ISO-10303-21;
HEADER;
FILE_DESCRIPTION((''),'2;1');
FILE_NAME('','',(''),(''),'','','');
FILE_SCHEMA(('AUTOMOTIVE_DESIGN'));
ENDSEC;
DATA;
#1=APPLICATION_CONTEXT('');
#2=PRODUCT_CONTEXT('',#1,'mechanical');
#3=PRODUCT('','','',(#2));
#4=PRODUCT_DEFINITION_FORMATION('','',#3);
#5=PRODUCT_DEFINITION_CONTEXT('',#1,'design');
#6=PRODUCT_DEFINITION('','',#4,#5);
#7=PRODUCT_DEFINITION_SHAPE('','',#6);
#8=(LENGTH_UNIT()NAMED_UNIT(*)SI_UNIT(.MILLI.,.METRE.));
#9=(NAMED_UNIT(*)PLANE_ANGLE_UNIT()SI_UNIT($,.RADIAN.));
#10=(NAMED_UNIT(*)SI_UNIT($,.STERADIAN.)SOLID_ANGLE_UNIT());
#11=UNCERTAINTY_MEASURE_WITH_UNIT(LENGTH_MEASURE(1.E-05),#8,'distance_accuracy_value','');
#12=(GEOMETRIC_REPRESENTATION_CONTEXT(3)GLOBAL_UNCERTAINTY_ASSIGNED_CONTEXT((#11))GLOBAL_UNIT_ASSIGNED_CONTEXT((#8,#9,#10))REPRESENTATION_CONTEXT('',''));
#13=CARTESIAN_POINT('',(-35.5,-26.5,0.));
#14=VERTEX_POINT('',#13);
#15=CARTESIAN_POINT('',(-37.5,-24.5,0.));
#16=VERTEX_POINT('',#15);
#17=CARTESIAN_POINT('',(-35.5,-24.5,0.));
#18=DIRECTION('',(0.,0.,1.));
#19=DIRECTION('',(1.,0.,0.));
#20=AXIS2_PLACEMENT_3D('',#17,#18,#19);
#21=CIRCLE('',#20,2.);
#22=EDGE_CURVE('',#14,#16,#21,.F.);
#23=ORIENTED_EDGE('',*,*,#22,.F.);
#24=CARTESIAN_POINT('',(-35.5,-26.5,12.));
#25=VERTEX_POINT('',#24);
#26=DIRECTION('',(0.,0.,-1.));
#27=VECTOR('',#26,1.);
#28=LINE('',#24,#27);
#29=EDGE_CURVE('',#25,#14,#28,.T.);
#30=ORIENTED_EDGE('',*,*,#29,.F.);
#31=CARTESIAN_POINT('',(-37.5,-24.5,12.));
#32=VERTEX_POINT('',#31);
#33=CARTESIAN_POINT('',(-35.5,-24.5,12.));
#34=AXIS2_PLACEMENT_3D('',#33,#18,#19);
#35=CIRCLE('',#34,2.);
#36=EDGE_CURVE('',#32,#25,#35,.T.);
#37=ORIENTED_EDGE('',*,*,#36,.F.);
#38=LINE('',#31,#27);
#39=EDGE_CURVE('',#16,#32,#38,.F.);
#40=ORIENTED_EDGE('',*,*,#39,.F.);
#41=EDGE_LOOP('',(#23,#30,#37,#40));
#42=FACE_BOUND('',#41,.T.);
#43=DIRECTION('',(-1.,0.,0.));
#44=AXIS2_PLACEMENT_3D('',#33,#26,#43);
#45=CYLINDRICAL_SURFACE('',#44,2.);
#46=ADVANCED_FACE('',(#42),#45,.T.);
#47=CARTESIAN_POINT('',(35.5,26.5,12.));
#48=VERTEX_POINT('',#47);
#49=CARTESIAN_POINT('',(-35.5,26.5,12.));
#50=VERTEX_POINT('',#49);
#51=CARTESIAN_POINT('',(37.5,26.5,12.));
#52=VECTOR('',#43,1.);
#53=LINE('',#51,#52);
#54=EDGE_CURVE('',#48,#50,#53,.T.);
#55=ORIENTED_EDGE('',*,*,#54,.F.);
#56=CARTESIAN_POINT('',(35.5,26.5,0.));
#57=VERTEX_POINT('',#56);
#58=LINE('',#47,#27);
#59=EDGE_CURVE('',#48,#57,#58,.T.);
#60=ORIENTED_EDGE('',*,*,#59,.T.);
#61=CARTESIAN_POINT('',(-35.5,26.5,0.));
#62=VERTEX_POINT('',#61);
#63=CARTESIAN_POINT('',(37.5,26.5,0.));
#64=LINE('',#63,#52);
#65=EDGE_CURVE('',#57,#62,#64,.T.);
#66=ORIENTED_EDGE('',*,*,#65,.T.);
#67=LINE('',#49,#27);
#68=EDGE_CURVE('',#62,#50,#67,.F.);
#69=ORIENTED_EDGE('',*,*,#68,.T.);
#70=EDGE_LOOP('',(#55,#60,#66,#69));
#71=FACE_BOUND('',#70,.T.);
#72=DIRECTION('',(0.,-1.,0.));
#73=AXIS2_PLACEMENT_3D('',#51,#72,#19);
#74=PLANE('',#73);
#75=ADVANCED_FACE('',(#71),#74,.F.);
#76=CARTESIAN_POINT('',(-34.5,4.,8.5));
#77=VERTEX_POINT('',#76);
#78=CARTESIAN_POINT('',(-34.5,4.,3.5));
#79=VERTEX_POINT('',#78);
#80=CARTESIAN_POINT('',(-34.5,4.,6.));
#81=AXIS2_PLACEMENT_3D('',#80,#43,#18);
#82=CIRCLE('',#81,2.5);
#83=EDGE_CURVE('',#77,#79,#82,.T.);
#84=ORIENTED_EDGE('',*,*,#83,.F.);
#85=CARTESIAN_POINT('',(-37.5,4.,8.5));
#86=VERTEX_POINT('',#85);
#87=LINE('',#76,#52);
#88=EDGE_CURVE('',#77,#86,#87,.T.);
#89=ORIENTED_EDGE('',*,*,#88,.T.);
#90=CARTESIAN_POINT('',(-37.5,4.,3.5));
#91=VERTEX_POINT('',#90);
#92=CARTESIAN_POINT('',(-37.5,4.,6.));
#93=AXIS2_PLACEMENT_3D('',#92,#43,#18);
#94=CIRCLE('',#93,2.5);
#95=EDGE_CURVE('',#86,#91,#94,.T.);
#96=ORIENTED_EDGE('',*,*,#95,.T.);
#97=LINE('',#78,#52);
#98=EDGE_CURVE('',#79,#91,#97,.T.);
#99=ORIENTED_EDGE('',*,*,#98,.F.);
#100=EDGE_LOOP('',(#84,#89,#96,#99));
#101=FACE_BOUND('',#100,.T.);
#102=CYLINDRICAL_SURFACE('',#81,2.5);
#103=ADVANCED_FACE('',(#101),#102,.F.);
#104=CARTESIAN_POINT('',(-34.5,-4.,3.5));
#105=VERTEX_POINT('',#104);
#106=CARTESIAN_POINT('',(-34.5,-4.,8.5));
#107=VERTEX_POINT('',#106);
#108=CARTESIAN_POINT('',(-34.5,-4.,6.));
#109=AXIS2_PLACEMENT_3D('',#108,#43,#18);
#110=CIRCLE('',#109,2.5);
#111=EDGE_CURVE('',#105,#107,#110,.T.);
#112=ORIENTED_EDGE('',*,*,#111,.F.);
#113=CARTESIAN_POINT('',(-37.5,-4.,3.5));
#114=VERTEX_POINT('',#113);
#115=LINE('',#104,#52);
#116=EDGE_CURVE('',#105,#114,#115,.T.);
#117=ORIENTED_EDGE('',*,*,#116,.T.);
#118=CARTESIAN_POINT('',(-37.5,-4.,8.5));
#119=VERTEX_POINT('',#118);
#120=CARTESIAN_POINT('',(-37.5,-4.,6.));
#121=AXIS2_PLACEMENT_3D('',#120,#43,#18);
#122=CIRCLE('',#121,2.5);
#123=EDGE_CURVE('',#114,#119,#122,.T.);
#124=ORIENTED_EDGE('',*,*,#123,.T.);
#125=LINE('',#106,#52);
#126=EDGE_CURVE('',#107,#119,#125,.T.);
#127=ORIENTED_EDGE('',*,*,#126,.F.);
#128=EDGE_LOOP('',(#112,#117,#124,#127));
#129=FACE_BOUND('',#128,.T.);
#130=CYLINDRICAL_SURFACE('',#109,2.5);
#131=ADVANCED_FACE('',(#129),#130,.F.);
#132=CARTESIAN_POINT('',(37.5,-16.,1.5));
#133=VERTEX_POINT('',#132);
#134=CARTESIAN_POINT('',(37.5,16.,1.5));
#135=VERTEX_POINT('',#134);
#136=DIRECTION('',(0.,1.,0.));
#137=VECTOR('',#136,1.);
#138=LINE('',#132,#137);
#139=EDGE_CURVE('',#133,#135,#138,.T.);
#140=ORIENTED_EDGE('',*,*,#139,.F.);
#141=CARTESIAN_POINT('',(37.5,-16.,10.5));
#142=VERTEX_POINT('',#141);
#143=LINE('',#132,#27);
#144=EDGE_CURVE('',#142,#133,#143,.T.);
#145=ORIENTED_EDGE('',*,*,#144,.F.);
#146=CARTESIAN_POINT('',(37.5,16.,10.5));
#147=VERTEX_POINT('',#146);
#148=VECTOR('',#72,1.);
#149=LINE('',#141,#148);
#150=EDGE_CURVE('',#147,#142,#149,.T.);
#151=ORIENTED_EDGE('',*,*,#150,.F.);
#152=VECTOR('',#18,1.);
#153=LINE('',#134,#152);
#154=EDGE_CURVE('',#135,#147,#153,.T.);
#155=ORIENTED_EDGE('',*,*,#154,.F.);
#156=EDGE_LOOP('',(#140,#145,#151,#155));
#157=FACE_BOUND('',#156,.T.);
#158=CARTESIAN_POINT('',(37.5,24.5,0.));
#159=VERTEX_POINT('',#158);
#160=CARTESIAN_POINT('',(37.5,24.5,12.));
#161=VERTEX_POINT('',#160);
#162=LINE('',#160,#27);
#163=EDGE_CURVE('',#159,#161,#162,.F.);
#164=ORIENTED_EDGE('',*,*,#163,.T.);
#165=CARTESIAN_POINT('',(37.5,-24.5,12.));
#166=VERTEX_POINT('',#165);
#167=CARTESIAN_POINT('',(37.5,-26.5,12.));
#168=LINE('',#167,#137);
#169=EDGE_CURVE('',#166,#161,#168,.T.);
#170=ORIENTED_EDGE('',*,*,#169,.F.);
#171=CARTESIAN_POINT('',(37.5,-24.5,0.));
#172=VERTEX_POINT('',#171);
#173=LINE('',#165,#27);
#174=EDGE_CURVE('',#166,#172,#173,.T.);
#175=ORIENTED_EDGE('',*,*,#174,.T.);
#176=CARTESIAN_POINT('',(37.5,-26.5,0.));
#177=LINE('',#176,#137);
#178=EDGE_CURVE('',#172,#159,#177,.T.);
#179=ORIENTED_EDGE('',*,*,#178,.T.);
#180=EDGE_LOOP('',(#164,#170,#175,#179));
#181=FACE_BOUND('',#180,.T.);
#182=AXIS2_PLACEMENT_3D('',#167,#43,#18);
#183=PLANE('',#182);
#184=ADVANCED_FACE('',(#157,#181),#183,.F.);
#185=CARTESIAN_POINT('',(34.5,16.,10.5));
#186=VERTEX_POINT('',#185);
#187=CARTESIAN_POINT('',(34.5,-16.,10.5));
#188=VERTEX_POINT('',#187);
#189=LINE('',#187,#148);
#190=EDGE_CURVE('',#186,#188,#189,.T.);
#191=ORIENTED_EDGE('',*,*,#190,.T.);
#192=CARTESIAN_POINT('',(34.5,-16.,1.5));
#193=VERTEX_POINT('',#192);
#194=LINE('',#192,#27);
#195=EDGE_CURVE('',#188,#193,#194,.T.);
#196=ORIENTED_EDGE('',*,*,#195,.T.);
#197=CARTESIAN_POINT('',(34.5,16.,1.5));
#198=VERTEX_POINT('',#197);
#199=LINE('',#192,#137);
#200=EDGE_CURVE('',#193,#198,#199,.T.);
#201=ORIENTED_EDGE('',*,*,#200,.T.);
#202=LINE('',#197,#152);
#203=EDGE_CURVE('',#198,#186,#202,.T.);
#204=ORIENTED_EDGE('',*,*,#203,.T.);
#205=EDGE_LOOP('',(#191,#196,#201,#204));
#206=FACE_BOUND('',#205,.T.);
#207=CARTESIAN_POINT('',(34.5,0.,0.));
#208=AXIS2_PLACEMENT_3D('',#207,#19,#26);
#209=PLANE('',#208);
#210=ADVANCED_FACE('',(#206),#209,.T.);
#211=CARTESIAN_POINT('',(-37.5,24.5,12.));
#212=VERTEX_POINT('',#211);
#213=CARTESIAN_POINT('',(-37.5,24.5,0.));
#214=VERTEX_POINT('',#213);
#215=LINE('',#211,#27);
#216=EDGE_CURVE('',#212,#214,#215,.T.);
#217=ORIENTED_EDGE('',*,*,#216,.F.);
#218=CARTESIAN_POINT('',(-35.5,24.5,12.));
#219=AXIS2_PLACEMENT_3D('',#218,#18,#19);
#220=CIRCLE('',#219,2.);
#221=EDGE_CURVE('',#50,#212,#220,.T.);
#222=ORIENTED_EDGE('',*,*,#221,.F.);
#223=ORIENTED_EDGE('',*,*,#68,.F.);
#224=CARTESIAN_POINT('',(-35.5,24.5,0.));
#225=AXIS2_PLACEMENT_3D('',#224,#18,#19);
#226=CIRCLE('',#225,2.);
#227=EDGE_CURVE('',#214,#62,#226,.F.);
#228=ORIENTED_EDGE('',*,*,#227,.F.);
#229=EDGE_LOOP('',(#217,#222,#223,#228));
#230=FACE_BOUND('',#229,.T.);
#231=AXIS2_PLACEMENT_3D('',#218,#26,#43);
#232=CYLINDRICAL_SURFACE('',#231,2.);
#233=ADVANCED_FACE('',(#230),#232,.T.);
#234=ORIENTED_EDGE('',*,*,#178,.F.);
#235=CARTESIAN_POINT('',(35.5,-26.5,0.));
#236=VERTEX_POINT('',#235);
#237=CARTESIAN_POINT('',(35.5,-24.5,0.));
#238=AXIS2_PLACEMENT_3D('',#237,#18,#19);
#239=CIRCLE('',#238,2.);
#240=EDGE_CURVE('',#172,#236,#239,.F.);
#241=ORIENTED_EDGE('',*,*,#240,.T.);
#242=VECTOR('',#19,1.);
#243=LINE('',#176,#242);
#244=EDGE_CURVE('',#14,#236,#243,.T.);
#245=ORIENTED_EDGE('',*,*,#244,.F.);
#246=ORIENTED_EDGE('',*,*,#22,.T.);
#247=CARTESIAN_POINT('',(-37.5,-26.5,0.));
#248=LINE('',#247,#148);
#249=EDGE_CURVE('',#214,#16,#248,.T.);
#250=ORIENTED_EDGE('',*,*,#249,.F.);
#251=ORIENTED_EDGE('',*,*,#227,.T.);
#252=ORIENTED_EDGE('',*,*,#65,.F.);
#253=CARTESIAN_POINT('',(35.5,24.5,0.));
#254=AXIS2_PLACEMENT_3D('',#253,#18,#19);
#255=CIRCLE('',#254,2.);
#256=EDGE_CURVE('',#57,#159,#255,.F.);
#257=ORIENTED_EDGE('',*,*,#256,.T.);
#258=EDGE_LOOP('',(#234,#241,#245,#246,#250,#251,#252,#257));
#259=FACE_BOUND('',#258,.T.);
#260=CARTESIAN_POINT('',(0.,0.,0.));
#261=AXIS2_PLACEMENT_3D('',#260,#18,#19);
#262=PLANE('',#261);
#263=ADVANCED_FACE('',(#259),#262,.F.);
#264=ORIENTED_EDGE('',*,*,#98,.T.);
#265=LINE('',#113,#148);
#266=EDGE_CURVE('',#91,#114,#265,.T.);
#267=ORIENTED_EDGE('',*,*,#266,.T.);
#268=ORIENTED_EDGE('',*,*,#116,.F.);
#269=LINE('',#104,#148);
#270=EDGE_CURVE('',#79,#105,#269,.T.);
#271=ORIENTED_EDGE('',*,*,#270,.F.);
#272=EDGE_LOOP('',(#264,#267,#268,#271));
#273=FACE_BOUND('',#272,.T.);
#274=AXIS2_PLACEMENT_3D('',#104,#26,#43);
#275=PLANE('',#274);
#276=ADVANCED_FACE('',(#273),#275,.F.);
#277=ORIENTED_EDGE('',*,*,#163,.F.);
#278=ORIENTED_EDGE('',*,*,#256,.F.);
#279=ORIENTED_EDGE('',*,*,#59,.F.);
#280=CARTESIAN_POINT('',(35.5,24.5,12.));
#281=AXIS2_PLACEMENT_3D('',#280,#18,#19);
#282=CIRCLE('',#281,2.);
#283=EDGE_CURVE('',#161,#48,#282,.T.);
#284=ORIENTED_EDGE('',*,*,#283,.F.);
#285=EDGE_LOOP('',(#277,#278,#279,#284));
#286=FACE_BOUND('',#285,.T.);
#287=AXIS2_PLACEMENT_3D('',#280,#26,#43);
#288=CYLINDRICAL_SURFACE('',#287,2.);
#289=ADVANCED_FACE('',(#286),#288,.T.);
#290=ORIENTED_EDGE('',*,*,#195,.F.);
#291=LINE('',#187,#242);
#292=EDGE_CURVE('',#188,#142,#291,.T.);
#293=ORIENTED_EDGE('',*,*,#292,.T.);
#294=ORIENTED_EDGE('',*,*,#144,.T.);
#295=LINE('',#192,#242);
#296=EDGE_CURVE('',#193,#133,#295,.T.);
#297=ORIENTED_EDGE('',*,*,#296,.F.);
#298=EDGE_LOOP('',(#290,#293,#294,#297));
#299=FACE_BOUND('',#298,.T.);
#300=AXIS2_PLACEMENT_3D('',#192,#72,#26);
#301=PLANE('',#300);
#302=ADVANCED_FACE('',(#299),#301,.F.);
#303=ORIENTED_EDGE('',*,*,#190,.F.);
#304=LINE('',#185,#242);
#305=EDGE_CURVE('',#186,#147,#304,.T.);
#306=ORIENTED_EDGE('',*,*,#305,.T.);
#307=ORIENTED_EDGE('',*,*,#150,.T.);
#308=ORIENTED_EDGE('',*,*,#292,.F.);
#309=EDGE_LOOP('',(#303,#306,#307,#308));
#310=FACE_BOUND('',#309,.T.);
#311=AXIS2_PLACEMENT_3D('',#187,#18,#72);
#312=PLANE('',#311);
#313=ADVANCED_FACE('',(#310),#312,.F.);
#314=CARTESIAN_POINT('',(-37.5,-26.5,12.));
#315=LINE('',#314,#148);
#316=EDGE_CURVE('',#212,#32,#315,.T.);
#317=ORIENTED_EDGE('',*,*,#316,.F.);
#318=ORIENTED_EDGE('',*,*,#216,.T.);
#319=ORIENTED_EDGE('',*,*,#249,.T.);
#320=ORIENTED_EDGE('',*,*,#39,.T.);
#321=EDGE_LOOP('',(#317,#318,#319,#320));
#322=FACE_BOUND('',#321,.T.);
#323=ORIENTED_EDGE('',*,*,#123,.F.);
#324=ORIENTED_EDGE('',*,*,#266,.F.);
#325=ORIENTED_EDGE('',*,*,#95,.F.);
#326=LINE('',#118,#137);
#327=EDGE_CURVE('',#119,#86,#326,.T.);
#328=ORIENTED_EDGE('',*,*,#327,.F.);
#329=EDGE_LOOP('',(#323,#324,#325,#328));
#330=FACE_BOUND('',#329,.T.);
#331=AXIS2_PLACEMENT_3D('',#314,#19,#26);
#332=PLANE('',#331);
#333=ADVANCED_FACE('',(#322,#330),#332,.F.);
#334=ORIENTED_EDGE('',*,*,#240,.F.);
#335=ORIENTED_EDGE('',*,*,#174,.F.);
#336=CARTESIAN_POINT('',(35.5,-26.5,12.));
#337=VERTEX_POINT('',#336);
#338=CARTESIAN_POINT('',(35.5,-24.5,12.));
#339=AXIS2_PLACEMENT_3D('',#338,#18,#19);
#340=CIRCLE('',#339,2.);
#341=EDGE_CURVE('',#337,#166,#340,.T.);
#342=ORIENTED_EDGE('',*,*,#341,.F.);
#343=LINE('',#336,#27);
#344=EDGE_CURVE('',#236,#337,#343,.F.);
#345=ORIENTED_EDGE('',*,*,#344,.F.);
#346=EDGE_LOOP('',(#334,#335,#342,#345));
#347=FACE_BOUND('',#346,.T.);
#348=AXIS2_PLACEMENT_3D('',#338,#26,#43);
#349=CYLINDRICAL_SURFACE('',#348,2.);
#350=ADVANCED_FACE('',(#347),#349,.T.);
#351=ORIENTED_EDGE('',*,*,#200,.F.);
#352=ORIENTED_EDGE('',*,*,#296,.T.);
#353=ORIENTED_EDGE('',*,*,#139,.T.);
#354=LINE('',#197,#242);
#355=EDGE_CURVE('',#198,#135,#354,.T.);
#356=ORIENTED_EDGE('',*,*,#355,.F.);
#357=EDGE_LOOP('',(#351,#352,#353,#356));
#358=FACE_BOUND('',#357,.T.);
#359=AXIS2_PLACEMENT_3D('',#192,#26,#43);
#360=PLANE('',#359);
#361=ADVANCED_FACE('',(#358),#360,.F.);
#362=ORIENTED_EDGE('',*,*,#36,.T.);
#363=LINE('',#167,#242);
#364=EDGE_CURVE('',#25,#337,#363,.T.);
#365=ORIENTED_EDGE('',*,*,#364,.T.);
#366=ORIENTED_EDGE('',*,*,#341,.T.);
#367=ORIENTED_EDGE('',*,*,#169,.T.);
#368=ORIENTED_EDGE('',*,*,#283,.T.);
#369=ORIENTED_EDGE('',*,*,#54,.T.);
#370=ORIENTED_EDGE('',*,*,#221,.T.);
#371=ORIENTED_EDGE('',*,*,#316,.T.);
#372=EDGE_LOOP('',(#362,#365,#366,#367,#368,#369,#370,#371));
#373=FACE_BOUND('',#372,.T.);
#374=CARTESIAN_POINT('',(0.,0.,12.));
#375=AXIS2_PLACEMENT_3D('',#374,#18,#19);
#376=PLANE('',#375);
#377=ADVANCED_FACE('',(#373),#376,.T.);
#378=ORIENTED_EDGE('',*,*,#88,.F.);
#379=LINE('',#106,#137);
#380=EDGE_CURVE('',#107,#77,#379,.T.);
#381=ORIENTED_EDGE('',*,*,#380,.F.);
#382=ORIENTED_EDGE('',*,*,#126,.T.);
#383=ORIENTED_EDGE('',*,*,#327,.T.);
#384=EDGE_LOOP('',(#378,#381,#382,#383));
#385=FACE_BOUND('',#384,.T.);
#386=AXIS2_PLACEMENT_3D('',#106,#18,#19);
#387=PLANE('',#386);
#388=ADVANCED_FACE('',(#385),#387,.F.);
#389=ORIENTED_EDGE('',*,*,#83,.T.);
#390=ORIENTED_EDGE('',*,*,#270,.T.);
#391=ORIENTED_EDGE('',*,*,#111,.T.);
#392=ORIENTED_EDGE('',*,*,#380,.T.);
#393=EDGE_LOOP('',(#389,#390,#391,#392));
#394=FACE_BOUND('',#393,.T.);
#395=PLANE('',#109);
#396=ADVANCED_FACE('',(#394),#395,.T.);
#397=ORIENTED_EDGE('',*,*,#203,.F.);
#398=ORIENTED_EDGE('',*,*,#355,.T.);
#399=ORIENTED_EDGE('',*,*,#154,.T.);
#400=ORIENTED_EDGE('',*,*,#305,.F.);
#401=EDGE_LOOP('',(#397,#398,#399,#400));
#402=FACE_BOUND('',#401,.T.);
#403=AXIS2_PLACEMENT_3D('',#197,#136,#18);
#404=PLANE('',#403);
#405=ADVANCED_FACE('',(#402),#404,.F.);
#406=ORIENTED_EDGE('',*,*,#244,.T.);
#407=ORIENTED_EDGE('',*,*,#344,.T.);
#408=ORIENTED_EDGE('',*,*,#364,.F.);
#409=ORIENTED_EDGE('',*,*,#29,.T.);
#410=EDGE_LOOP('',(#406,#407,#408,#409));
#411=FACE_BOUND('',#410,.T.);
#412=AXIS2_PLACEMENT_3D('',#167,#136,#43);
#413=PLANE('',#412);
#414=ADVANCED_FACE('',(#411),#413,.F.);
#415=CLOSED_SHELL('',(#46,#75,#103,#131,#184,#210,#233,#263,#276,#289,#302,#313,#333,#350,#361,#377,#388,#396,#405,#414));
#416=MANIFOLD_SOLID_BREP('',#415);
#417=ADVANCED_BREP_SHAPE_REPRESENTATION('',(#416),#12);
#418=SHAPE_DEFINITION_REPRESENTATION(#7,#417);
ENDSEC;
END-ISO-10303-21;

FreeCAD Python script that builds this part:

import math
import FreeCAD as App
import Part
import Sketcher


def edges_at(feature, points):
    """Names of the edges that pass closest to the given points."""
    edges = feature.Shape.Edges
    near = lambda p: min(range(len(edges)), key=lambda i: edges[i].distToShape(Part.Vertex(*p))[0])
    return sorted({f"Edge{near(p) + 1}" for p in points})


def add_polygon(sketch, points):
    """Adds a closed chain of lines whose ends are joined by coincident constraints."""
    first, n = sketch.GeometryCount, len(points)
    for a, b in zip(points, points[1:] + points[:1]):
        sketch.addGeometry(Part.LineSegment(App.Vector(*a, 0), App.Vector(*b, 0)), False)
    for i in range(n):
        sketch.addConstraint(Sketcher.Constraint("Coincident", first + i, 2, first + (i + 1) % n, 1))

doc = App.newDocument("Part")
params = doc.addObject("Spreadsheet::Sheet", "Params")
for row, (alias, value) in enumerate([
    ("sketch1_width", "75 mm"),
    ("sketch1_height", "53 mm"),
    ("pad1_length", "12 mm"),
    ("fillet_radius", "2 mm"),
    ("sketch2_width", "32 mm"),
    ("sketch2_height", "9 mm"),
    ("pocket1_length", "3 mm"),
    ("sketch3_radius", "2.5 mm"),
    ("sketch3_width", "8 mm"),
    ("pocket2_length", "3 mm"),
], start=1):
    params.set(f"A{row}", alias)
    params.set(f"B{row}", "=" + value)
    params.setAlias(f"B{row}", alias)

body = doc.addObject("PartDesign::Body", "Body")

# Sketch on XY plane
sketch1 = body.newObject("Sketcher::SketchObject", "Sketch")
sketch1.AttachmentSupport = (doc.getObject("XY_Plane"), [""])
sketch1.MapMode = "FlatFace"
add_polygon(sketch1, [(-37.5, 26.5), (-37.5, -26.5), (37.5, -26.5), (37.5, 26.5)])  # lines 0-3
sketch1.addConstraint(Sketcher.Constraint("Vertical", 0))
sketch1.addConstraint(Sketcher.Constraint("Horizontal", 1))
sketch1.addConstraint(Sketcher.Constraint("Vertical", 2))
sketch1.addConstraint(Sketcher.Constraint("Horizontal", 3))
sketch1.addConstraint(Sketcher.Constraint("Symmetric", 0, 2, 2, 2, -1, 1))
sketch1.addConstraint(Sketcher.Constraint("DistanceX", 1, 1, 1, 2, 75.0))
sketch1.addConstraint(Sketcher.Constraint("DistanceY", 0, 2, 0, 1, 53.0))
sketch1.setExpression("Constraints[9]", "Params.sketch1_width")
sketch1.setExpression("Constraints[10]", "Params.sketch1_height")
pad1 = body.newObject("PartDesign::Pad", "Pad")
pad1.Profile = sketch1
pad1.setExpression("Length", "Params.pad1_length")
doc.recompute()

fillet = body.newObject("PartDesign::Fillet", "Fillet")
fillet.Base = (pad1, edges_at(pad1, [
    (-37.5, 26.5, 6),
    (37.5, 26.5, 6),
    (37.5, -26.5, 6),
    (-37.5, -26.5, 6),
]))
fillet.setExpression("Radius", "Params.fillet_radius")

# Sketch on YZ plane
sketch2 = body.newObject("Sketcher::SketchObject", "Sketch001")
sketch2.AttachmentSupport = (doc.getObject("YZ_Plane"), [""])
sketch2.MapMode = "FlatFace"
sketch2.AttachmentOffset = App.Placement(App.Vector(0, 0, 37.5), App.Rotation())
add_polygon(sketch2, [(16, 10.5), (-16, 10.5), (-16, 1.5), (16, 1.5)])  # lines 0-3
sketch2.addConstraint(Sketcher.Constraint("Horizontal", 0))
sketch2.addConstraint(Sketcher.Constraint("Vertical", 1))
sketch2.addConstraint(Sketcher.Constraint("Horizontal", 2))
sketch2.addConstraint(Sketcher.Constraint("Vertical", 3))
sketch2.addConstraint(Sketcher.Constraint("DistanceX", 0, 2, 0, 1, 32.0))
sketch2.addConstraint(Sketcher.Constraint("DistanceY", 1, 2, 1, 1, 9.0))
sketch2.addConstraint(Sketcher.Constraint("DistanceX", 0, 2, -1, 1, 16.0))
sketch2.addConstraint(Sketcher.Constraint("DistanceY", -1, 1, 0, 2, 10.5))
sketch2.setExpression("Constraints[8]", "Params.sketch2_width")
sketch2.setExpression("Constraints[9]", "Params.sketch2_height")
pocket1 = body.newObject("PartDesign::Pocket", "Pocket")
pocket1.Profile = sketch2
pocket1.setExpression("Length", "Params.pocket1_length")

# Sketch on YZ plane
sketch3 = body.newObject("Sketcher::SketchObject", "Sketch002")
sketch3.AttachmentSupport = (doc.getObject("YZ_Plane"), [""])
sketch3.MapMode = "FlatFace"
sketch3.AttachmentOffset = App.Placement(App.Vector(0, 0, -37.5), App.Rotation())
sketch3.addGeometry(Part.LineSegment(App.Vector(4, 3.5, 0), App.Vector(-4, 3.5, 0)), False)
sketch3.addGeometry(Part.ArcOfCircle(Part.Circle(App.Vector(-4, 6, 0), App.Vector(0, 0, 1), 2.5), math.radians(90), math.radians(270)), False)
sketch3.addGeometry(Part.LineSegment(App.Vector(-4, 8.5, 0), App.Vector(4, 8.5, 0)), False)
sketch3.addGeometry(Part.ArcOfCircle(Part.Circle(App.Vector(4, 6, 0), App.Vector(0, 0, 1), 2.5), math.radians(-90), math.radians(90)), False)
sketch3.addConstraint(Sketcher.Constraint("Tangent", 0, 2, 1, 2))
sketch3.addConstraint(Sketcher.Constraint("Tangent", 1, 1, 2, 1))
sketch3.addConstraint(Sketcher.Constraint("Tangent", 2, 2, 3, 2))
sketch3.addConstraint(Sketcher.Constraint("Tangent", 3, 1, 0, 1))
sketch3.addConstraint(Sketcher.Constraint("Horizontal", 0))
sketch3.addConstraint(Sketcher.Constraint("Horizontal", 2))
sketch3.addConstraint(Sketcher.Constraint("Radius", 1, 2.5))
sketch3.addConstraint(Sketcher.Constraint("DistanceX", 0, 2, 0, 1, 8.0))
sketch3.addConstraint(Sketcher.Constraint("DistanceX", 1, 3, -1, 1, 4.0))
sketch3.addConstraint(Sketcher.Constraint("DistanceY", -1, 1, 1, 3, 6.0))
sketch3.setExpression("Constraints[6]", "Params.sketch3_radius")
sketch3.setExpression("Constraints[7]", "Params.sketch3_width")
pocket2 = body.newObject("PartDesign::Pocket", "Pocket001")
pocket2.Profile = sketch3
pocket2.setExpression("Length", "Params.pocket2_length")
pocket2.Reversed = True

doc.recompute()
